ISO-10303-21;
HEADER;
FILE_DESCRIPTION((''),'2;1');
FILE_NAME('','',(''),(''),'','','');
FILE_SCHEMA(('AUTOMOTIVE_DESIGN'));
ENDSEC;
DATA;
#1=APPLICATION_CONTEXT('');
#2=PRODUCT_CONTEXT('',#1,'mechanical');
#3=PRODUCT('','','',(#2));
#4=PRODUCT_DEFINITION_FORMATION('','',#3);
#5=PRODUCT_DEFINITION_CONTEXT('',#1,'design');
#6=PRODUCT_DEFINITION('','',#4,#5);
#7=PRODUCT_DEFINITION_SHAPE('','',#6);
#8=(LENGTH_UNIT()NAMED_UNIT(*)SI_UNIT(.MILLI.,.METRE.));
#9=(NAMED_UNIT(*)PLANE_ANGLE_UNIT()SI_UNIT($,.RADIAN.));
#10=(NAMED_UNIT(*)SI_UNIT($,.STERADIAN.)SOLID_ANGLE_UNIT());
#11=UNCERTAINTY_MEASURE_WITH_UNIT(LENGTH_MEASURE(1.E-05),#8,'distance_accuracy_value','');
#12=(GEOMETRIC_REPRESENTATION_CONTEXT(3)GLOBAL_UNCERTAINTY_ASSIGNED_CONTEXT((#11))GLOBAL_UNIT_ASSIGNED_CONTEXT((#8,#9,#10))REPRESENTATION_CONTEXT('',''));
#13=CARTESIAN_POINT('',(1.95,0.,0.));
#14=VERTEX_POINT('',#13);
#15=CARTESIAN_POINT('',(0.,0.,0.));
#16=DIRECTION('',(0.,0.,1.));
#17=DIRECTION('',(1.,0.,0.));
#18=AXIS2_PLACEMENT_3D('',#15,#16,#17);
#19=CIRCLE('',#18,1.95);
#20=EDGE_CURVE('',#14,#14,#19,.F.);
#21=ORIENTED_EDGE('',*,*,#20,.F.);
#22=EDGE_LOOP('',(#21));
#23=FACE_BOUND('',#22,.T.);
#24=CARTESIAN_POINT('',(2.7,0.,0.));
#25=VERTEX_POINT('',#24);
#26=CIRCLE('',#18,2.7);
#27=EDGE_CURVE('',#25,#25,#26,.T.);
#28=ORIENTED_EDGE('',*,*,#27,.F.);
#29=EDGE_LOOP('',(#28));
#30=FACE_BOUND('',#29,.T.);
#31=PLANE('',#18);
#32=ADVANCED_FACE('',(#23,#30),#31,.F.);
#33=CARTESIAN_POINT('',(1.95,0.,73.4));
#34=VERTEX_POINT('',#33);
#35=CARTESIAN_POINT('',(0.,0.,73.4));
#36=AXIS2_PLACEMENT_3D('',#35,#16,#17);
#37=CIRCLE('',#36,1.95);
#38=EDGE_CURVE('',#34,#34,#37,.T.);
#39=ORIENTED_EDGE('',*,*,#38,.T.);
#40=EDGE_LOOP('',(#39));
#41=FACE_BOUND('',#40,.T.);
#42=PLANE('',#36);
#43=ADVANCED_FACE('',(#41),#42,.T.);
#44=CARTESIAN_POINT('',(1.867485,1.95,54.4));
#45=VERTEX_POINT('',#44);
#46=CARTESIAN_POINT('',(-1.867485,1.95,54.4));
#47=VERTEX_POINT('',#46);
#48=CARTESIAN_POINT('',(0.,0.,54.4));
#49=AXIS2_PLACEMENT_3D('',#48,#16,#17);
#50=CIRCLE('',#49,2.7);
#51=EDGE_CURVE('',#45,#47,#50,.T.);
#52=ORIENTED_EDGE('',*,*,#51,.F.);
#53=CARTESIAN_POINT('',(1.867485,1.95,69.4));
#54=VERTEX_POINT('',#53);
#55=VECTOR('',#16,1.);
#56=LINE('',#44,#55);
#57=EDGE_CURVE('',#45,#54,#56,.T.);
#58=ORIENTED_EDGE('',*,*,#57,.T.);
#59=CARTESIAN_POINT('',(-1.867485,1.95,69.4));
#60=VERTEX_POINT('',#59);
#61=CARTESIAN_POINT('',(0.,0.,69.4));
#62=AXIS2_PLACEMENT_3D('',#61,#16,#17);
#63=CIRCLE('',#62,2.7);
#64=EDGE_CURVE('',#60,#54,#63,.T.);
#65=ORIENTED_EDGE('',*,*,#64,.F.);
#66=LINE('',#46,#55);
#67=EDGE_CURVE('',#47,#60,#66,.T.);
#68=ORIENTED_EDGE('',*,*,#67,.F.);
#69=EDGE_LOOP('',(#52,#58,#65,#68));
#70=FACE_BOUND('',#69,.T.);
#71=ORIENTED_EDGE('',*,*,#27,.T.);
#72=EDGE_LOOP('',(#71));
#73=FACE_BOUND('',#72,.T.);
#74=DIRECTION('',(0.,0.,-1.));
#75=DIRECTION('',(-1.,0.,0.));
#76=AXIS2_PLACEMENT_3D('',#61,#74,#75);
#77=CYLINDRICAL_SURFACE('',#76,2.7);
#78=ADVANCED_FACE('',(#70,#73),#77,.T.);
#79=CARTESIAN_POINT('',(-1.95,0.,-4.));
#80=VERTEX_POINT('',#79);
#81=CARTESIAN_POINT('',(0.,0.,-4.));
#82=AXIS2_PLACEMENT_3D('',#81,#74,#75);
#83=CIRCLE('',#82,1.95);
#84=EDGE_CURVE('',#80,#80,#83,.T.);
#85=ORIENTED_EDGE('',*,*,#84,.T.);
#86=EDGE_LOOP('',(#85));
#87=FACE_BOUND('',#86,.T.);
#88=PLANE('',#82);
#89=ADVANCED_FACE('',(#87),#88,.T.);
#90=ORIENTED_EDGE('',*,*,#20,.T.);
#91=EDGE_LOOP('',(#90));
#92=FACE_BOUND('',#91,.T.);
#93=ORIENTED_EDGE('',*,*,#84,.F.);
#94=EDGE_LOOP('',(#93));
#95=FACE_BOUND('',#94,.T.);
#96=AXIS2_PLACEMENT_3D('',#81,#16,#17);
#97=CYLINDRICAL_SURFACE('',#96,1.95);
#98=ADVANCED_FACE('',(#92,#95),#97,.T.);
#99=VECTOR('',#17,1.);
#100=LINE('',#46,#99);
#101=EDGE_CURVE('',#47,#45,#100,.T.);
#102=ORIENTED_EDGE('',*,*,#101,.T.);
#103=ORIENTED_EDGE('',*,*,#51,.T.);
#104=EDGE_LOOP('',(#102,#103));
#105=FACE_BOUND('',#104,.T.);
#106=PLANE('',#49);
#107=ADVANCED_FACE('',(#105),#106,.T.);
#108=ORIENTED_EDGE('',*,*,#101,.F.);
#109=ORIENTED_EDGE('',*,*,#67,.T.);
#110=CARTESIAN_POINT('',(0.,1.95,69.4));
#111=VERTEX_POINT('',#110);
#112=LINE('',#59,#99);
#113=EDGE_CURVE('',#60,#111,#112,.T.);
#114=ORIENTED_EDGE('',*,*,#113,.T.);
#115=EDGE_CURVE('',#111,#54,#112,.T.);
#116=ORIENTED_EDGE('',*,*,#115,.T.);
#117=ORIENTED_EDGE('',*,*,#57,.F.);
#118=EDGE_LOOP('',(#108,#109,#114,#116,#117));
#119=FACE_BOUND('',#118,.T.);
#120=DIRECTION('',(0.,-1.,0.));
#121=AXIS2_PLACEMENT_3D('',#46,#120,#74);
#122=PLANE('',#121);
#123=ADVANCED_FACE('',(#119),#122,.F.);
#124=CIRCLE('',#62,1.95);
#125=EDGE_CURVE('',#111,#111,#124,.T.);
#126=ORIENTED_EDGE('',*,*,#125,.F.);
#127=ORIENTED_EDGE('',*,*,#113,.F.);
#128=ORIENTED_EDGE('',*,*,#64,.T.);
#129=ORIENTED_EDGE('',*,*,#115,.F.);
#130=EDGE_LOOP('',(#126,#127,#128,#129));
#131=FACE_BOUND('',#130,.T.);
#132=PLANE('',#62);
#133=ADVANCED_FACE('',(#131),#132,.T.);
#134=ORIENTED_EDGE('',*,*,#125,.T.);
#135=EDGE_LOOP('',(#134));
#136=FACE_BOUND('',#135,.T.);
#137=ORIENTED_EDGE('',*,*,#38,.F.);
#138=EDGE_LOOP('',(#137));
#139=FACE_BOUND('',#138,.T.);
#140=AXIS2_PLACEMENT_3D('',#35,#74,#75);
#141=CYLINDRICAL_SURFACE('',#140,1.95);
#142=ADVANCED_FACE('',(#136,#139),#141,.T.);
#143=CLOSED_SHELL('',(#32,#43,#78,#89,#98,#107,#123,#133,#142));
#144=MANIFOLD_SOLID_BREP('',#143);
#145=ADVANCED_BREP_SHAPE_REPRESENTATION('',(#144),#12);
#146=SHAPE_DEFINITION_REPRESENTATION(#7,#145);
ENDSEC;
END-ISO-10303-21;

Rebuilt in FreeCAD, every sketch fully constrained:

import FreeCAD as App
import Part
import Sketcher

V = App.Vector

doc = App.newDocument("Part")
body = doc.addObject("PartDesign::Body", "Body")

# Sketch on XY plane
sketch1 = body.newObject("Sketcher::SketchObject", "Sketch")
sketch1.AttachmentSupport = (doc.getObject("XY_Plane"), [""])
sketch1.MapMode = "FlatFace"
sketch1.addGeometry(Part.Circle(V(0, 0, 0), V(0, 0, 1), 2.7), False)
sketch1.addConstraint(Sketcher.Constraint("Coincident", 0, 3, -1, 1))
sketch1.addConstraint(Sketcher.Constraint("Diameter", 0, 5.4))
pad1 = body.newObject("PartDesign::Pad", "Pad")
pad1.Profile = sketch1
pad1.Length = 69.4

# Sketch on XY plane
sketch2 = body.newObject("Sketcher::SketchObject", "Sketch001")
sketch2.AttachmentSupport = (doc.getObject("XY_Plane"), [""])
sketch2.MapMode = "FlatFace"
sketch2.AttachmentOffset = App.Placement(V(0, 0, 69.4), App.Rotation())
sketch2.addGeometry(Part.Circle(V(0, 0, 0), V(0, 0, 1), 1.9), False)
sketch2.addConstraint(Sketcher.Constraint("Coincident", 0, 3, -1, 1))
sketch2.addConstraint(Sketcher.Constraint("Diameter", 0, 3.9))
pad2 = body.newObject("PartDesign::Pad", "Pad001")
pad2.Profile = sketch2
pad2.Length = 4

# Sketch on XY plane
sketch3 = body.newObject("Sketcher::SketchObject", "Sketch002")
sketch3.AttachmentSupport = (doc.getObject("XY_Plane"), [""])
sketch3.MapMode = "FlatFace"
sketch3.AttachmentOffset = App.Placement(V(0, 0, -4), App.Rotation())
sketch3.addGeometry(Part.Circle(V(0, 0, 0), V(0, 0, 1), 1.9), False)
sketch3.addConstraint(Sketcher.Constraint("Coincident", 0, 3, -1, 1))
sketch3.addConstraint(Sketcher.Constraint("Diameter", 0, 3.9))
pad3 = body.newObject("PartDesign::Pad", "Pad002")
pad3.Profile = sketch3
pad3.Length = 4

# Sketch on XY plane
sketch4 = body.newObject("Sketcher::SketchObject", "Sketch003")
sketch4.AttachmentSupport = (doc.getObject("XY_Plane"), [""])
sketch4.MapMode = "FlatFace"
sketch4.AttachmentOffset = App.Placement(V(0, 0, 69.4), App.Rotation())
sketch4.addGeometry(Part.LineSegment(V(-1.9, 2.7, 0), V(-1.9, 1.9, 0)), False)
sketch4.addGeometry(Part.LineSegment(V(-1.9, 1.9, 0), V(1.9, 1.9, 0)), False)
sketch4.addGeometry(Part.LineSegment(V(1.9, 1.9, 0), V(1.9, 2.7, 0)), False)
sketch4.addGeometry(Part.LineSegment(V(1.9, 2.7, 0), V(-1.9, 2.7, 0)), False)
sketch4.addConstraint(Sketcher.Constraint("Coincident", 0, 2, 1, 1))
sketch4.addConstraint(Sketcher.Constraint("Coincident", 1, 2, 2, 1))
sketch4.addConstraint(Sketcher.Constraint("Coincident", 2, 2, 3, 1))
sketch4.addConstraint(Sketcher.Constraint("Coincident", 3, 2, 0, 1))
sketch4.addConstraint(Sketcher.Constraint("Vertical", 0))
sketch4.addConstraint(Sketcher.Constraint("Horizontal", 1))
sketch4.addConstraint(Sketcher.Constraint("Vertical", 2))
sketch4.addConstraint(Sketcher.Constraint("Horizontal", 3))
sketch4.addConstraint(Sketcher.Constraint("DistanceY", 0, 2, 0, 1, 0.75))
sketch4.addConstraint(Sketcher.Constraint("DistanceY", -1, 1, 2, 2, 2.7))
sketch4.addConstraint(Sketcher.Constraint("DistanceX", 1, 1, 1, 2, 3.73497))
sketch4.addConstraint(Sketcher.Constraint("DistanceX", 0, 2, -1, 1, 1.867485))
pocket1 = body.newObject("PartDesign::Pocket", "Pocket")
pocket1.Profile = sketch4
pocket1.Length = 15

doc.recompute()
